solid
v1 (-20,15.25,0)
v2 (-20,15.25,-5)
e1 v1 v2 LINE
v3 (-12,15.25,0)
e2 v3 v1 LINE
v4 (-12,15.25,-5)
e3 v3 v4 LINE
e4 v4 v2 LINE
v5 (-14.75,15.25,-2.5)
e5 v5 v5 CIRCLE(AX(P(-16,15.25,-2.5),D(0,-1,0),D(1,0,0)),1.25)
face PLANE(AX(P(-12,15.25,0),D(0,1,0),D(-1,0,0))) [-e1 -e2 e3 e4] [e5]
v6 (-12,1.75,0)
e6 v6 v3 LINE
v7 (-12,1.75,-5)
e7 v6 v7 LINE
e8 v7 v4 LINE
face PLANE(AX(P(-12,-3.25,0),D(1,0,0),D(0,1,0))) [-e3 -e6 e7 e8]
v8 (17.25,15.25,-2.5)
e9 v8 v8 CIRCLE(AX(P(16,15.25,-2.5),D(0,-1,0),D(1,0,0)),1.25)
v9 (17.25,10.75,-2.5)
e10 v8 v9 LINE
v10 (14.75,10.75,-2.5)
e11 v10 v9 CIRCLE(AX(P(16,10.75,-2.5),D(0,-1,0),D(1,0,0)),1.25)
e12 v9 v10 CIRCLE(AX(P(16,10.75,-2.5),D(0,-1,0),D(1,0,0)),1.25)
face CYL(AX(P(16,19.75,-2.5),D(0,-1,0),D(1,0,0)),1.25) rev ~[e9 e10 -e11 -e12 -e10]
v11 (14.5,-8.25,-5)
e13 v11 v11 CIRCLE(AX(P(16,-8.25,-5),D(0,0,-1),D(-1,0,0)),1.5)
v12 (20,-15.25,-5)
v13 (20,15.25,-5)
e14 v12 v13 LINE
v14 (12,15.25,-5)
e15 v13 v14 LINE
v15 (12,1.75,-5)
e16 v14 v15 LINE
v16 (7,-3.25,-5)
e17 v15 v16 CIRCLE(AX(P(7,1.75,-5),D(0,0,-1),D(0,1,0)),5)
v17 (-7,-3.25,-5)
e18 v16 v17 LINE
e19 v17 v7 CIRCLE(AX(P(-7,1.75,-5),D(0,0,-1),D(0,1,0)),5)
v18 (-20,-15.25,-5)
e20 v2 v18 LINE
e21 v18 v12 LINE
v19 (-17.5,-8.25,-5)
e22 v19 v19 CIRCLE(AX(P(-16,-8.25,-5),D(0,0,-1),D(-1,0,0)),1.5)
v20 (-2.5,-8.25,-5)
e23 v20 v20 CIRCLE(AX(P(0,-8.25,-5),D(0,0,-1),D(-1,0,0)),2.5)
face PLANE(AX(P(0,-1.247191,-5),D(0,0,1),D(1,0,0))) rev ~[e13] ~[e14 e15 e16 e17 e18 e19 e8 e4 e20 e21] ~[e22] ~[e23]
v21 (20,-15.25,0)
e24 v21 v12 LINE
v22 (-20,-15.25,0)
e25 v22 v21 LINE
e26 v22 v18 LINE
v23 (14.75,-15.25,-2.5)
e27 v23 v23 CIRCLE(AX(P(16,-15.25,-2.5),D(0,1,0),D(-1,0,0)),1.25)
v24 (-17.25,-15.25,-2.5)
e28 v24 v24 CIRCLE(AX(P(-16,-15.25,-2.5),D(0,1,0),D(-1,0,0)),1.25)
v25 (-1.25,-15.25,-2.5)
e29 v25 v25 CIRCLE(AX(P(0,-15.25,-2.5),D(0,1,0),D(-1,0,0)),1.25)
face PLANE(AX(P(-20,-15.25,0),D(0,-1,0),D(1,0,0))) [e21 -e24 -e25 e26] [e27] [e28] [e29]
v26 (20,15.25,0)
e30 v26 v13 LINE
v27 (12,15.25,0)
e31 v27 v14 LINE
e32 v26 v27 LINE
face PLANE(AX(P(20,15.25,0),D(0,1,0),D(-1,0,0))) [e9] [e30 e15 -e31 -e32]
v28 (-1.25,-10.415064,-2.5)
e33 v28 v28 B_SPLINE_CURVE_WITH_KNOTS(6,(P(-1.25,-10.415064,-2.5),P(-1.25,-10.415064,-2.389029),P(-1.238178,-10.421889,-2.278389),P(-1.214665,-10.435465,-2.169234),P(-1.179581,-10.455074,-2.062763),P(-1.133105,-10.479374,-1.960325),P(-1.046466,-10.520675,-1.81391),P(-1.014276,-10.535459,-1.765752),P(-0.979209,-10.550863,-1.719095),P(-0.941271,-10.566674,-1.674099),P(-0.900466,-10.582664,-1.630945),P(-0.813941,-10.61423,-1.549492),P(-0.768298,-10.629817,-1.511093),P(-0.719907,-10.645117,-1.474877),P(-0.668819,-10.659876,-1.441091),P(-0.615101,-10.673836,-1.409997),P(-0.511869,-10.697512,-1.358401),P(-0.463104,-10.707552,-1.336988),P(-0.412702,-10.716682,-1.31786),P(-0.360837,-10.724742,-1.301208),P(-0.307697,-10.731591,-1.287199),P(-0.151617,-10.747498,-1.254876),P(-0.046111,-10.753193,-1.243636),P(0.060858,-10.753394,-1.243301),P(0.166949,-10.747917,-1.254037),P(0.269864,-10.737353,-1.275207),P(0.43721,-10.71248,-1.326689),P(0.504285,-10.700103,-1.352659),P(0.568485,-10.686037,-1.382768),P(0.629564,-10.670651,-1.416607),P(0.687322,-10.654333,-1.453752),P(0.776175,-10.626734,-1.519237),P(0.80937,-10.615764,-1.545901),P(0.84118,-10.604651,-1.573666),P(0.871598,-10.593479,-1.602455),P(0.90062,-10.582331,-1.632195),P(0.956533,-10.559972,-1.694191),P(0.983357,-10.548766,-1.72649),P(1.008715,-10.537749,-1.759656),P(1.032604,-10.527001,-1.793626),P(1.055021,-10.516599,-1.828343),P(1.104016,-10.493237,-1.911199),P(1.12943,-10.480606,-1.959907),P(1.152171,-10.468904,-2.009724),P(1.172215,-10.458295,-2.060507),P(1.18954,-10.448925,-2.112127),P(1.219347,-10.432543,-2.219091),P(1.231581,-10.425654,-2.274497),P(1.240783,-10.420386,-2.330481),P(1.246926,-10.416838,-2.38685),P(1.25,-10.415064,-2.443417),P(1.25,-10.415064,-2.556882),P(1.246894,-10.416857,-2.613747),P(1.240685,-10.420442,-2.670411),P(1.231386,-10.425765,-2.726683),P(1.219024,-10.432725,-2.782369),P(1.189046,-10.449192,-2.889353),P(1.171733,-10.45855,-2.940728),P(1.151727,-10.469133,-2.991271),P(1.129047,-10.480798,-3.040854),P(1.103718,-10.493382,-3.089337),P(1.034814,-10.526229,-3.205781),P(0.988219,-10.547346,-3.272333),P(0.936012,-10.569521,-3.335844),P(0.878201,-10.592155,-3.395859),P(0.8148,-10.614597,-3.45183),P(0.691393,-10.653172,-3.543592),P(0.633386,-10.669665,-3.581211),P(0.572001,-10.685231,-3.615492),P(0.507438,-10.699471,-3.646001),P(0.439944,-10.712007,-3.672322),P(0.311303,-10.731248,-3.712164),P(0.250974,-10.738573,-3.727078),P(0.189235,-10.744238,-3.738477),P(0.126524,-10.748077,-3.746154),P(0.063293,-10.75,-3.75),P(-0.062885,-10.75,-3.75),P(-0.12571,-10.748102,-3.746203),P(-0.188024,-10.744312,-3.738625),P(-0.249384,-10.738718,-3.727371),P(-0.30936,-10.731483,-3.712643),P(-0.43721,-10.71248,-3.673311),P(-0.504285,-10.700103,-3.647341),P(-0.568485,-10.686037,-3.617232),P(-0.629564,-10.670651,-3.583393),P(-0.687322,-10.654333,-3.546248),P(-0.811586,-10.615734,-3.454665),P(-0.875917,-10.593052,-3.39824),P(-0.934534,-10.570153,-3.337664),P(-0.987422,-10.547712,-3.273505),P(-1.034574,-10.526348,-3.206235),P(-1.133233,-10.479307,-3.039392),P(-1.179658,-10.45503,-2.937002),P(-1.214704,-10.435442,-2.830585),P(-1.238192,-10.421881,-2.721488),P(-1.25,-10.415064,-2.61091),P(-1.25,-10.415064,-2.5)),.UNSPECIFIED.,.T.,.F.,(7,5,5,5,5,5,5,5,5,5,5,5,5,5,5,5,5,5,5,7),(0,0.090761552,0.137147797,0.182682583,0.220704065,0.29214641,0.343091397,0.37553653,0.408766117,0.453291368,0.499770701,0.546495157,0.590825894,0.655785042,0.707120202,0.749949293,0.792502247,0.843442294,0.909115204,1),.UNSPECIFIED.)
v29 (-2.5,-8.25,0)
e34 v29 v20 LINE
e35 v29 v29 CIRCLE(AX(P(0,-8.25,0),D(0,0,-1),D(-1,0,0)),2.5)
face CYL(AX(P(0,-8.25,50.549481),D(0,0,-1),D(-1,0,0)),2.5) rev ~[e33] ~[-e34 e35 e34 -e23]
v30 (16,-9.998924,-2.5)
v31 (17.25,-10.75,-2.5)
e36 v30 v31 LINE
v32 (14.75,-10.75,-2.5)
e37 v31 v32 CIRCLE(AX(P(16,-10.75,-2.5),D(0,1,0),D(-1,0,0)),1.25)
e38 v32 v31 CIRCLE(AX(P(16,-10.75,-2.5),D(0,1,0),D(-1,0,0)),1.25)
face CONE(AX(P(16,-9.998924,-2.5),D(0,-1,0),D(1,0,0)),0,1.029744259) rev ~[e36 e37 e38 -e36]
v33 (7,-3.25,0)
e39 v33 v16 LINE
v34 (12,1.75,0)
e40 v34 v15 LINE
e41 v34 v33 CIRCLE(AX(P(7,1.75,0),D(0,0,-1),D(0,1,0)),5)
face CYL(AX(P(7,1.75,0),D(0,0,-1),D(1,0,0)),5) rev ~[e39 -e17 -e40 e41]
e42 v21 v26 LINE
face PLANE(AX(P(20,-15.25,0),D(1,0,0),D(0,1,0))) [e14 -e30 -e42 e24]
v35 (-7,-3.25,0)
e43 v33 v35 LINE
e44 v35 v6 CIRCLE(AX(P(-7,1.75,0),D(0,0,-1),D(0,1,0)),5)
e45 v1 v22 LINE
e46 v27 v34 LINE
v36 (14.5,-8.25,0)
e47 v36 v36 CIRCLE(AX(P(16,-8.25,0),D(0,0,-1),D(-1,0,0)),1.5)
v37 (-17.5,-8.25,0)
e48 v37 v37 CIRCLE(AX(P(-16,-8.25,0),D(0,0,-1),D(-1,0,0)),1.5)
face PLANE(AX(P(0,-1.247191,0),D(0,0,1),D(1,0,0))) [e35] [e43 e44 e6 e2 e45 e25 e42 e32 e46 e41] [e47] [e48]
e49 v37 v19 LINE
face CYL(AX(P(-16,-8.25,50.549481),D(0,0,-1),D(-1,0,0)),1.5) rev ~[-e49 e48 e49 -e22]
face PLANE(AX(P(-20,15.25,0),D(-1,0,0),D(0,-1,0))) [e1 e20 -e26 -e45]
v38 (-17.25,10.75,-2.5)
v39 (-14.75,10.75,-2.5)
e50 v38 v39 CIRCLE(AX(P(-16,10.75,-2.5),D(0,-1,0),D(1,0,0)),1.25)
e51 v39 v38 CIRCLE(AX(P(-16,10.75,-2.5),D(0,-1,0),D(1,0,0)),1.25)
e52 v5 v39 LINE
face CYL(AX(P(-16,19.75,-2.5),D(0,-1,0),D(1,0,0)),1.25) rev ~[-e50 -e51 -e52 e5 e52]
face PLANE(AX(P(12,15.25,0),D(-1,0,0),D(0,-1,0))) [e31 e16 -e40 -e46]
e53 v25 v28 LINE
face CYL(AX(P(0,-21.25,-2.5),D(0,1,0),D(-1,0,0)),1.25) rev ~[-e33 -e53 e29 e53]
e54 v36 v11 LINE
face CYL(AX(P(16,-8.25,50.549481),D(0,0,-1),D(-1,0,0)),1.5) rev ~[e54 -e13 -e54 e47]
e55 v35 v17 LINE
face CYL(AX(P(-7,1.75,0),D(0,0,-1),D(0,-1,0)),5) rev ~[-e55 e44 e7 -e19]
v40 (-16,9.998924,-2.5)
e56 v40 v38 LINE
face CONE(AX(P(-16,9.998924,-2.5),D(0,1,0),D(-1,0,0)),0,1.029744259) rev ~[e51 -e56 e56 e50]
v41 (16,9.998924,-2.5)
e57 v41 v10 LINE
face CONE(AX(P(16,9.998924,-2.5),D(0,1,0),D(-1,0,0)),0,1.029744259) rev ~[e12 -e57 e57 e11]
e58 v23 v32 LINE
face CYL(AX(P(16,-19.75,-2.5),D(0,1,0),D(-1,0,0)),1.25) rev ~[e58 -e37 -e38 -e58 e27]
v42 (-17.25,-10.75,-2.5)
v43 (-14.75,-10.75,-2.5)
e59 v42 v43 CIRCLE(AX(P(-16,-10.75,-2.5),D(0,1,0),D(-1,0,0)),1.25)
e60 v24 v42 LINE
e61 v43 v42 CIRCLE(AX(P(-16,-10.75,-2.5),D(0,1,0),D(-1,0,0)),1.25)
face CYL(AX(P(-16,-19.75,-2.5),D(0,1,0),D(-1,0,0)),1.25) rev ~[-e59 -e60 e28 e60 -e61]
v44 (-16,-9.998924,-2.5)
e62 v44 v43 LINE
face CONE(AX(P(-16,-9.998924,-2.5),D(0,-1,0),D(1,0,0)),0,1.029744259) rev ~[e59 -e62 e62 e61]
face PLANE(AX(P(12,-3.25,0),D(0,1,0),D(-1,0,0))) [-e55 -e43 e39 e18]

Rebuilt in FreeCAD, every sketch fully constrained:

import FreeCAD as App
import Part
import Sketcher


def edges_at(feature, points):
    """Names of the edges that pass closest to the given points."""
    edges = feature.Shape.Edges
    near = lambda p: min(range(len(edges)), key=lambda i: edges[i].distToShape(Part.Vertex(*p))[0])
    return sorted({f"Edge{near(p) + 1}" for p in points})

doc = App.newDocument("Part")
body = doc.addObject("PartDesign::Body", "Body")

# Sketch on XY plane
sketch1 = doc.addObject("Sketcher::SketchObject", "Sketch")
body.addObject(sketch1)
sketch1.AttachmentSupport = (doc.XY_Plane, [""])
sketch1.MapMode = "FlatFace"
sketch1.addGeometry(Part.LineSegment(App.Vector(-20, -15, 0), App.Vector(20, -15, 0)), False)
sketch1.addGeometry(Part.LineSegment(App.Vector(20, -15, 0), App.Vector(20, 15, 0)), False)
sketch1.addGeometry(Part.LineSegment(App.Vector(20, 15, 0), App.Vector(12, 15, 0)), False)
sketch1.addGeometry(Part.LineSegment(App.Vector(12, 15, 0), App.Vector(12, -3, 0)), False)
sketch1.addGeometry(Part.LineSegment(App.Vector(12, -3, 0), App.Vector(-12, -3, 0)), False)
sketch1.addGeometry(Part.LineSegment(App.Vector(-12, -3, 0), App.Vector(-12, 15, 0)), False)
sketch1.addGeometry(Part.LineSegment(App.Vector(-12, 15, 0), App.Vector(-20, 15, 0)), False)
sketch1.addGeometry(Part.LineSegment(App.Vector(-20, 15, 0), App.Vector(-20, -15, 0)), False)
sketch1.addConstraint(Sketcher.Constraint("Coincident", 0, 2, 1, 1))
sketch1.addConstraint(Sketcher.Constraint("Coincident", 1, 2, 2, 1))
sketch1.addConstraint(Sketcher.Constraint("Coincident", 2, 2, 3, 1))
sketch1.addConstraint(Sketcher.Constraint("Coincident", 3, 2, 4, 1))
sketch1.addConstraint(Sketcher.Constraint("Coincident", 4, 2, 5, 1))
sketch1.addConstraint(Sketcher.Constraint("Coincident", 5, 2, 6, 1))
sketch1.addConstraint(Sketcher.Constraint("Coincident", 6, 2, 7, 1))
sketch1.addConstraint(Sketcher.Constraint("Coincident", 7, 2, 0, 1))
sketch1.addConstraint(Sketcher.Constraint("Horizontal", 0))
sketch1.addConstraint(Sketcher.Constraint("Vertical", 1))
sketch1.addConstraint(Sketcher.Constraint("Horizontal", 2))
sketch1.addConstraint(Sketcher.Constraint("Vertical", 3))
sketch1.addConstraint(Sketcher.Constraint("Horizontal", 4))
sketch1.addConstraint(Sketcher.Constraint("Vertical", 5))
sketch1.addConstraint(Sketcher.Constraint("Horizontal", 6))
sketch1.addConstraint(Sketcher.Constraint("Vertical", 7))
sketch1.addConstraint(Sketcher.Constraint("Symmetric", 0, 2, 6, 2, -1, 1))
sketch1.addConstraint(Sketcher.Constraint("Symmetric", 2, 2, 5, 2, -2))
sketch1.addConstraint(Sketcher.Constraint("DistanceX", 0, 1, 0, 2, 40.0))
sketch1.addConstraint(Sketcher.Constraint("DistanceX", 2, 2, 2, 1, 8.0))
sketch1.addConstraint(Sketcher.Constraint("DistanceY", 1, 1, 1, 2, 30.5))
sketch1.addConstraint(Sketcher.Constraint("DistanceY", 3, 2, 3, 1, 18.5))
pad1 = doc.addObject("PartDesign::Pad", "Pad")
body.addObject(pad1)
pad1.Profile = sketch1
pad1.Length = 5
pad1.Reversed = True
doc.recompute()

fillet = doc.addObject("PartDesign::Fillet", "Fillet")
body.addObject(fillet)
fillet.Base = (pad1, edges_at(pad1, [(-12, -3.25, -2.5), (12, -3.25, -2.5)]))
fillet.Radius = 5

# Sketch on XY plane
sketch2 = doc.addObject("Sketcher::SketchObject", "Sketch001")
body.addObject(sketch2)
sketch2.AttachmentSupport = (doc.XY_Plane, [""])
sketch2.MapMode = "FlatFace"
sketch2.addGeometry(Part.Circle(App.Vector(-16, -8.2, 0), App.Vector(0, 0, 1), 1.5), False)
sketch2.addGeometry(Part.Circle(App.Vector(16, -8.2, 0), App.Vector(0, 0, 1), 1.5), False)
sketch2.addConstraint(Sketcher.Constraint("Equal", 0, 1))
sketch2.addConstraint(Sketcher.Constraint("Symmetric", 0, 3, 1, 3, -2))
sketch2.addConstraint(Sketcher.Constraint("Diameter", 0, 3.0))
sketch2.addConstraint(Sketcher.Constraint("DistanceX", 0, 3, -1, 1, 16.0))
sketch2.addConstraint(Sketcher.Constraint("DistanceY", 0, 3, -1, 1, 8.25))
doc.recompute()
hole = doc.addObject("PartDesign::Hole", "Hole")
body.addObject(hole)
hole.Profile = sketch2
hole.ThreadType = "None"
hole.Diameter = 3
hole.DepthType = "ThroughAll"

# Sketch on XZ plane
sketch3 = doc.addObject("Sketcher::SketchObject", "Sketch002")
body.addObject(sketch3)
sketch3.AttachmentSupport = (doc.XZ_Plane, [""])
sketch3.MapMode = "FlatFace"
sketch3.AttachmentOffset = App.Placement(App.Vector(0, 0, -15.25), App.Rotation())
sketch3.addGeometry(Part.Circle(App.Vector(16, -2.5, 0), App.Vector(0, 0, 1), 1.2), False)
sketch3.addGeometry(Part.Circle(App.Vector(-16, -2.5, 0), App.Vector(0, 0, 1), 1.2), False)
sketch3.addConstraint(Sketcher.Constraint("Equal", 0, 1))
sketch3.addConstraint(Sketcher.Constraint("Symmetric", 0, 3, 1, 3, -2))
sketch3.addConstraint(Sketcher.Constraint("Diameter", 0, 2.5))
sketch3.addConstraint(Sketcher.Constraint("DistanceX", -1, 1, 0, 3, 16.0))
sketch3.addConstraint(Sketcher.Constraint("DistanceY", 0, 3, -1, 1, 2.5))
doc.recompute()
hole2 = doc.addObject("PartDesign::Hole", "Hole001")
body.addObject(hole2)
hole2.Profile = sketch3
hole2.ThreadType = "None"
hole2.Diameter = 2.5
hole2.DepthType = "Dimension"
hole2.Depth = 4.5
hole2.DrillPoint = "Angled"
hole2.DrillPointAngle = 118
hole2.Reversed = True

# Sketch on XZ plane
sketch4 = doc.addObject("Sketcher::SketchObject", "Sketch003")
body.addObject(sketch4)
sketch4.AttachmentSupport = (doc.XZ_Plane, [""])
sketch4.MapMode = "FlatFace"
sketch4.AttachmentOffset = App.Placement(App.Vector(0, 0, 15.25), App.Rotation())
sketch4.addGeometry(Part.Circle(App.Vector(-16, -2.5, 0), App.Vector(0, 0, 1), 1.2), False)
sketch4.addGeometry(Part.Circle(App.Vector(16, -2.5, 0), App.Vector(0, 0, 1), 1.2), False)
sketch4.addConstraint(Sketcher.Constraint("Equal", 0, 1))
sketch4.addConstraint(Sketcher.Constraint("Symmetric", 0, 3, 1, 3, -2))
sketch4.addConstraint(Sketcher.Constraint("Diameter", 0, 2.5))
sketch4.addConstraint(Sketcher.Constraint("DistanceX", 0, 3, -1, 1, 16.0))
sketch4.addConstraint(Sketcher.Constraint("DistanceY", 0, 3, -1, 1, 2.5))
doc.recompute()
hole3 = doc.addObject("PartDesign::Hole", "Hole002")
body.addObject(hole3)
hole3.Profile = sketch4
hole3.ThreadType = "None"
hole3.Diameter = 2.5
hole3.DepthType = "Dimension"
hole3.Depth = 4.5
hole3.DrillPoint = "Angled"
hole3.DrillPointAngle = 118

# Sketch on XY plane
sketch5 = doc.addObject("Sketcher::SketchObject", "Sketch004")
body.addObject(sketch5)
sketch5.AttachmentSupport = (doc.XY_Plane, [""])
sketch5.MapMode = "FlatFace"
sketch5.addGeometry(Part.Circle(App.Vector(0, -8.2, 0), App.Vector(0, 0, 1), 2.5), False)
sketch5.addConstraint(Sketcher.Constraint("PointOnObject", 0, 3, -2))
sketch5.addConstraint(Sketcher.Constraint("Diameter", 0, 5.0))
sketch5.addConstraint(Sketcher.Constraint("DistanceY", 0, 3, -1, 1, 8.25))
doc.recompute()
hole4 = doc.addObject("PartDesign::Hole", "Hole003")
body.addObject(hole4)
hole4.Profile = sketch5
hole4.ThreadType = "None"
hole4.Diameter = 5
hole4.DepthType = "ThroughAll"

# Sketch on XZ plane
sketch6 = doc.addObject("Sketcher::SketchObject", "Sketch005")
body.addObject(sketch6)
sketch6.AttachmentSupport = (doc.XZ_Plane, [""])
sketch6.MapMode = "FlatFace"
sketch6.AttachmentOffset = App.Placement(App.Vector(0, 0, 15.25), App.Rotation())
sketch6.addGeometry(Part.Circle(App.Vector(0, -2.5, 0), App.Vector(0, 0, 1), 1.2), False)
sketch6.addConstraint(Sketcher.Constraint("PointOnObject", 0, 3, -2))
sketch6.addConstraint(Sketcher.Constraint("Diameter", 0, 2.5))
sketch6.addConstraint(Sketcher.Constraint("DistanceY", 0, 3, -1, 1, 2.5))
doc.recompute()
hole5 = doc.addObject("PartDesign::Hole", "Hole004")
body.addObject(hole5)
hole5.Profile = sketch6
hole5.ThreadType = "None"
hole5.Diameter = 2.5
hole5.DepthType = "Dimension"
hole5.Depth = 6
hole5.DrillPoint = "Angled"
hole5.DrillPointAngle = 118

doc.recompute()
